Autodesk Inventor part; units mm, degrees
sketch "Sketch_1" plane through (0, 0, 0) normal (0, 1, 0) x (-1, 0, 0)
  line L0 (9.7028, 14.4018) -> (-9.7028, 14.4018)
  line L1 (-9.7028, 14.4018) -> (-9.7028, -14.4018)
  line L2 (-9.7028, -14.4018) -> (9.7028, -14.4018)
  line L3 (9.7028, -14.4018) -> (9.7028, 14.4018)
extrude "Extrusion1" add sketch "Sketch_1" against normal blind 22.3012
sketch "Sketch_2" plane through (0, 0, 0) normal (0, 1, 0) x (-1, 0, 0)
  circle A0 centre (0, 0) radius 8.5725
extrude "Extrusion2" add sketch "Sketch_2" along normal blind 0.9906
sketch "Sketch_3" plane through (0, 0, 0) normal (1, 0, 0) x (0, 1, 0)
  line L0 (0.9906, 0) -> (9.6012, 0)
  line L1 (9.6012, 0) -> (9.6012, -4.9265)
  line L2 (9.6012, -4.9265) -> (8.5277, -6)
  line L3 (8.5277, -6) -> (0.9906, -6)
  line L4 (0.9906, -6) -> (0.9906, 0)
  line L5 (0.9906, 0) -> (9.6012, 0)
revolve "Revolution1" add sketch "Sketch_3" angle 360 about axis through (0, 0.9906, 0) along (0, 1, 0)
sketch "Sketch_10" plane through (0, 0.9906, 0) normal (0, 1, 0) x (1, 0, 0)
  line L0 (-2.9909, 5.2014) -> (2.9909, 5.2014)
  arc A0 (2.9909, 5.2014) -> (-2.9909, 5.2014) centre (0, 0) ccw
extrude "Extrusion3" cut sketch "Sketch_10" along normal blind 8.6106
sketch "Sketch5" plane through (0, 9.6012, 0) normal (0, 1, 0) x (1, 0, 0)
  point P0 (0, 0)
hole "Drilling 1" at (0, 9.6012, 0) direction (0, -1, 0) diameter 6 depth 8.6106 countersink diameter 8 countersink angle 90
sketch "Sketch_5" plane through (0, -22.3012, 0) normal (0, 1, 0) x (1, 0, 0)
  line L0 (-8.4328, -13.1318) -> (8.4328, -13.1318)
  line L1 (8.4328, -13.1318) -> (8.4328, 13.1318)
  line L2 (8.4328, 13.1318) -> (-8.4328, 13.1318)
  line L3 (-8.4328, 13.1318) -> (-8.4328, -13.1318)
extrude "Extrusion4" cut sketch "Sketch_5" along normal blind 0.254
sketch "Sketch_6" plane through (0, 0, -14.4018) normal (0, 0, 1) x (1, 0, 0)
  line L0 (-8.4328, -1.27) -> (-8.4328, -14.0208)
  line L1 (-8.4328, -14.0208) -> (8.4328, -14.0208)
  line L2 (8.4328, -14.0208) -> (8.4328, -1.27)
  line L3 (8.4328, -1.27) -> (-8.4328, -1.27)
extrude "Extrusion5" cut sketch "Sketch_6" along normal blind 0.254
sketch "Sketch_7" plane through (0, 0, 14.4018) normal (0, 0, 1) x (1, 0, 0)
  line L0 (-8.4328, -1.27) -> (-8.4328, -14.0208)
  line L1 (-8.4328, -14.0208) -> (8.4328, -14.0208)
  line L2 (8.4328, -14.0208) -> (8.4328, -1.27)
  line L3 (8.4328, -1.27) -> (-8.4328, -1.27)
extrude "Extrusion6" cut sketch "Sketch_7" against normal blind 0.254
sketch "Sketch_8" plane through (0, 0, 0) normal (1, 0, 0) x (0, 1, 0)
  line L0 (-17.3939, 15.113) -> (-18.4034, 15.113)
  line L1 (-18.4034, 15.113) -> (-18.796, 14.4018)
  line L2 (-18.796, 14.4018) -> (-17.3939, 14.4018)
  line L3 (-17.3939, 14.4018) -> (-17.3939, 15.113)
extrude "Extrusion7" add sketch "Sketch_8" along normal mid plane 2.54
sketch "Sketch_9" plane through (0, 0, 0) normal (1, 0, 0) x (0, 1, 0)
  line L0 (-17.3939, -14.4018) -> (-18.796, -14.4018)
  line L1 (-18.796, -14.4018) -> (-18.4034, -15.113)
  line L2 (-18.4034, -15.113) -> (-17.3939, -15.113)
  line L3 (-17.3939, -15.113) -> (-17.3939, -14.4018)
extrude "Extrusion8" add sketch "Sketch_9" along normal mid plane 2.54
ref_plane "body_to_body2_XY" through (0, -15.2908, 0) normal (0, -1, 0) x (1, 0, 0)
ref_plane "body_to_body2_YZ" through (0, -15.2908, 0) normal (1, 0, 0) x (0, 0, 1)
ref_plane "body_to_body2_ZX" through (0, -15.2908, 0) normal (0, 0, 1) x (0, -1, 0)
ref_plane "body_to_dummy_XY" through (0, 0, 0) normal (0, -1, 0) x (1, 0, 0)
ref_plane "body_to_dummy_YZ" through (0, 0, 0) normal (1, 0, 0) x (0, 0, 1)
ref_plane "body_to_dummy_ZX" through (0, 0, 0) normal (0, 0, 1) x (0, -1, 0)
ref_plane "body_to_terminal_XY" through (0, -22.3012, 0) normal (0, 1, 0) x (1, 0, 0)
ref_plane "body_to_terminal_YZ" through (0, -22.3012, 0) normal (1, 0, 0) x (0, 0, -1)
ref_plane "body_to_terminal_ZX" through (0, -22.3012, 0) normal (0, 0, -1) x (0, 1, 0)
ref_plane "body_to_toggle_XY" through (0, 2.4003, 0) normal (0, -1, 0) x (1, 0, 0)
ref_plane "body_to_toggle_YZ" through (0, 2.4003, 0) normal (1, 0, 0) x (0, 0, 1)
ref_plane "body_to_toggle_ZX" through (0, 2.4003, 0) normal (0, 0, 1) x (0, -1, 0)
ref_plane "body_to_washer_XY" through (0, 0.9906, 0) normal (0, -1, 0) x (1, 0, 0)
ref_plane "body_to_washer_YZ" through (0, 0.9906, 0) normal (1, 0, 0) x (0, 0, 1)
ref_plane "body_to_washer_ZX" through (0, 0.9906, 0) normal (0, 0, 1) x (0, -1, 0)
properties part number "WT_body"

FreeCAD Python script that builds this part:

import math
import FreeCAD as App
import Part
import Sketcher
from FreeCAD import Vector
Q = App.Units.Quantity

doc = App.newDocument("Part")
body = doc.addObject("PartDesign::Body", "Body")

sketch1 = body.newObject("Sketcher::SketchObject", "Sketch")
sketch1.AttachmentSupport = (doc.getObject("XZ_Plane"), [""])
sketch1.MapMode = "FlatFace"
sketch1.addGeometry([
    Part.LineSegment(Vector(-10, -14, 0), Vector(-10, 14, 0)),
    Part.LineSegment(Vector(-10, 14, 0), Vector(10, 14, 0)),
    Part.LineSegment(Vector(10, 14, 0), Vector(10, -14, 0)),
    Part.LineSegment(Vector(10, -14, 0), Vector(-10, -14, 0)),
], False)
sketch1.addConstraint([
    Sketcher.Constraint("Coincident", 0, 2, 1, 1),
    Sketcher.Constraint("Coincident", 1, 2, 2, 1),
    Sketcher.Constraint("Coincident", 2, 2, 3, 1),
    Sketcher.Constraint("Coincident", 3, 2, 0, 1),
    Sketcher.Constraint("Vertical", 0),
    Sketcher.Constraint("Horizontal", 1),
    Sketcher.Constraint("Vertical", 2),
    Sketcher.Constraint("Horizontal", 3),
    Sketcher.Constraint("Symmetric", 0, 2, 2, 2, -1, 1),
    Sketcher.Constraint("DistanceX", 1, 1, 1, 2, Q("0.764 in")),
    Sketcher.Constraint("DistanceY", 0, 1, 0, 2, Q("1.134 in")),
])
pad1 = body.newObject("PartDesign::Pad", "Pad")
pad1.Profile = sketch1
pad1.Length = Q("0.878 in")

sketch2 = body.newObject("Sketcher::SketchObject", "Sketch001")
sketch2.AttachmentSupport = (doc.getObject("XZ_Plane"), [""])
sketch2.MapMode = "FlatFace"
sketch2.addGeometry(Part.Circle(Vector(0, 0, 0), Vector(0, 0, 1), 9), False)
sketch2.addConstraint([
    Sketcher.Constraint("Coincident", 0, 3, -1, 1),
    Sketcher.Constraint("Diameter", 0, Q("0.675 in")),
])
pad2 = body.newObject("PartDesign::Pad", "Pad001")
pad2.Profile = sketch2
pad2.Length = Q("0.039 in")
pad2.Reversed = True

sketch3 = body.newObject("Sketcher::SketchObject", "Sketch002")
sketch3.AttachmentSupport = (doc.getObject("YZ_Plane"), [""])
sketch3.MapMode = "FlatFace"
sketch3.addGeometry([
    Part.LineSegment(Vector(9.6, 0, 0), Vector(1, 0, 0)),
    Part.LineSegment(Vector(1, 0, 0), Vector(1, -6, 0)),
    Part.LineSegment(Vector(1, -6, 0), Vector(8.5, -6, 0)),
    Part.LineSegment(Vector(8.5, -6, 0), Vector(9.6, -4.9, 0)),
    Part.LineSegment(Vector(9.6, -4.9, 0), Vector(9.6, 0, 0)),
], False)
sketch3.addConstraint([
    Sketcher.Constraint("Coincident", 0, 2, 1, 1),
    Sketcher.Constraint("Coincident", 1, 2, 2, 1),
    Sketcher.Constraint("Coincident", 2, 2, 3, 1),
    Sketcher.Constraint("Coincident", 3, 2, 4, 1),
    Sketcher.Constraint("Coincident", 4, 2, 0, 1),
    Sketcher.Constraint("Horizontal", 0),
    Sketcher.Constraint("Vertical", 1),
    Sketcher.Constraint("Horizontal", 2),
    Sketcher.Constraint("Vertical", 4),
    Sketcher.Constraint("PointOnObject", 0, 2, -1),
    Sketcher.Constraint("Angle", 3, Q("45 deg")),
    Sketcher.Constraint("DistanceX", 0, 2, 0, 1, Q("0.339 in")),
    Sketcher.Constraint("DistanceX", -1, 1, 0, 2, Q("0.039 in")),
    Sketcher.Constraint("DistanceX", 2, 1, 2, 2, Q("7.537 mm")),
    Sketcher.Constraint("DistanceY", 1, 2, 1, 1, Q("6 mm")),
])
revolution = body.newObject("PartDesign::Revolution", "Revolution")
revolution.Profile = sketch3
revolution.ReferenceAxis = (sketch3, ["H_Axis"])
revolution.Angle = 360

sketch4 = body.newObject("Sketcher::SketchObject", "Sketch003")
sketch4.AttachmentSupport = (doc.getObject("XZ_Plane"), [""])
sketch4.MapMode = "FlatFace"
sketch4.AttachmentOffset = App.Placement(Vector(0, 0, -0.039 * 25.4), App.Rotation())
sketch4.addGeometry([
    Part.ArcOfCircle(Part.Circle(Vector(0, 0, 0), Vector(0, 0, 1), 6), math.radians(-120), math.radians(-60)),
    Part.LineSegment(Vector(-3, -5, 0), Vector(3, -5, 0)),
], False)
sketch4.addConstraint([
    Sketcher.Constraint("Coincident", 0, 1, 1, 1),
    Sketcher.Constraint("Coincident", 1, 2, 0, 2),
    Sketcher.Constraint("Horizontal", 1),
    Sketcher.Constraint("Coincident", 0, 3, -1, 1),
    Sketcher.Constraint("Radius", 0, Q("6 mm")),
    Sketcher.Constraint("DistanceX", 1, 1, 1, 2, Q("0.2355 in")),
])
pocket1 = body.newObject("PartDesign::Pocket", "Pocket")
pocket1.Profile = sketch4
pocket1.Length = Q("0.339 in")

sketch5 = body.newObject("Sketcher::SketchObject", "Sketch004")
sketch5.AttachmentSupport = (doc.getObject("XZ_Plane"), [""])
sketch5.MapMode = "FlatFace"
sketch5.AttachmentOffset = App.Placement(Vector(0, 0, -0.378 * 25.4), App.Rotation())
sketch5.addGeometry(Part.Circle(Vector(0, 0, 0), Vector(0, 0, 1), 3), False)
sketch5.addConstraint([
    Sketcher.Constraint("Coincident", 0, 3, -1, 1),
    Sketcher.Constraint("Diameter", 0, Q("6 mm")),
])
doc.recompute()
hole = body.newObject("PartDesign::Hole", "Hole")
hole.Profile = sketch5
hole.ThreadType = "None"
hole.Diameter = 6
hole.DepthType = "Dimension"
hole.Depth = Q("0.339 in")
hole.DrillPoint = "Flat"
hole.HoleCutType = "Countersink"
hole.HoleCutDiameter = 8
hole.HoleCutCountersinkAngle = 90
hole.Reversed = True

sketch6 = body.newObject("Sketcher::SketchObject", "Sketch005")
sketch6.AttachmentSupport = (doc.getObject("XZ_Plane"), [""])
sketch6.MapMode = "FlatFace"
sketch6.AttachmentOffset = App.Placement(Vector(0, 0, 0.878 * 25.4), App.Rotation())
sketch6.addGeometry([
    Part.LineSegment(Vector(-8, -13, 0), Vector(-8, 13, 0)),
    Part.LineSegment(Vector(-8, 13, 0), Vector(8, 13, 0)),
    Part.LineSegment(Vector(8, 13, 0), Vector(8, -13, 0)),
    Part.LineSegment(Vector(8, -13, 0), Vector(-8, -13, 0)),
], False)
sketch6.addConstraint([
    Sketcher.Constraint("Coincident", 0, 2, 1, 1),
    Sketcher.Constraint("Coincident", 1, 2, 2, 1),
    Sketcher.Constraint("Coincident", 2, 2, 3, 1),
    Sketcher.Constraint("Coincident", 3, 2, 0, 1),
    Sketcher.Constraint("Vertical", 0),
    Sketcher.Constraint("Horizontal", 1),
    Sketcher.Constraint("Vertical", 2),
    Sketcher.Constraint("Horizontal", 3),
    Sketcher.Constraint("Symmetric", 0, 2, 2, 2, -1, 1),
    Sketcher.Constraint("DistanceX", 1, 1, 1, 2, Q("0.664 in")),
    Sketcher.Constraint("DistanceY", 0, 1, 0, 2, Q("1.034 in")),
])
pocket2 = body.newObject("PartDesign::Pocket", "Pocket001")
pocket2.Profile = sketch6
pocket2.Length = Q("0.01 in")

sketch7 = body.newObject("Sketcher::SketchObject", "Sketch006")
sketch7.AttachmentSupport = (doc.getObject("XY_Plane"), [""])
sketch7.MapMode = "FlatFace"
sketch7.AttachmentOffset = App.Placement(Vector(0, 0, -0.567 * 25.4), App.Rotation())
sketch7.addGeometry([
    Part.LineSegment(Vector(8, -1, 0), Vector(-8, -1, 0)),
    Part.LineSegment(Vector(-8, -1, 0), Vector(-8, -14, 0)),
    Part.LineSegment(Vector(-8, -14, 0), Vector(8, -14, 0)),
    Part.LineSegment(Vector(8, -14, 0), Vector(8, -1, 0)),
], False)
sketch7.addConstraint([
    Sketcher.Constraint("Coincident", 0, 2, 1, 1),
    Sketcher.Constraint("Coincident", 1, 2, 2, 1),
    Sketcher.Constraint("Coincident", 2, 2, 3, 1),
    Sketcher.Constraint("Coincident", 3, 2, 0, 1),
    Sketcher.Constraint("Horizontal", 0),
    Sketcher.Constraint("Vertical", 1),
    Sketcher.Constraint("Horizontal", 2),
    Sketcher.Constraint("Vertical", 3),
    Sketcher.Constraint("DistanceX", 0, 2, 0, 1, Q("0.664 in")),
    Sketcher.Constraint("DistanceY", 1, 2, 1, 1, Q("0.502 in")),
    Sketcher.Constraint("DistanceY", 0, 2, -1, 1, Q("0.05 in")),
    Sketcher.Constraint("DistanceX", 0, 2, -1, 1, Q("0.332 in")),
])
pocket3 = body.newObject("PartDesign::Pocket", "Pocket002")
pocket3.Profile = sketch7
pocket3.Length = Q("0.01 in")
pocket3.Reversed = True

sketch8 = body.newObject("Sketcher::SketchObject", "Sketch007")
sketch8.AttachmentSupport = (doc.getObject("XY_Plane"), [""])
sketch8.MapMode = "FlatFace"
sketch8.AttachmentOffset = App.Placement(Vector(0, 0, 0.567 * 25.4), App.Rotation())
sketch8.addGeometry([
    Part.LineSegment(Vector(8, -1, 0), Vector(-8, -1, 0)),
    Part.LineSegment(Vector(-8, -1, 0), Vector(-8, -14, 0)),
    Part.LineSegment(Vector(-8, -14, 0), Vector(8, -14, 0)),
    Part.LineSegment(Vector(8, -14, 0), Vector(8, -1, 0)),
], False)
sketch8.addConstraint([
    Sketcher.Constraint("Coincident", 0, 2, 1, 1),
    Sketcher.Constraint("Coincident", 1, 2, 2, 1),
    Sketcher.Constraint("Coincident", 2, 2, 3, 1),
    Sketcher.Constraint("Coincident", 3, 2, 0, 1),
    Sketcher.Constraint("Horizontal", 0),
    Sketcher.Constraint("Vertical", 1),
    Sketcher.Constraint("Horizontal", 2),
    Sketcher.Constraint("Vertical", 3),
    Sketcher.Constraint("DistanceX", 0, 2, 0, 1, Q("0.664 in")),
    Sketcher.Constraint("DistanceY", 1, 2, 1, 1, Q("0.502 in")),
    Sketcher.Constraint("DistanceY", 0, 2, -1, 1, Q("0.05 in")),
    Sketcher.Constraint("DistanceX", 0, 2, -1, 1, Q("0.332 in")),
])
pocket4 = body.newObject("PartDesign::Pocket", "Pocket003")
pocket4.Profile = sketch8
pocket4.Length = Q("0.01 in")

sketch9 = body.newObject("Sketcher::SketchObject", "Sketch008")
sketch9.AttachmentSupport = (doc.getObject("YZ_Plane"), [""])
sketch9.MapMode = "FlatFace"
sketch9.addGeometry([
    Part.LineSegment(Vector(-17.4, 14.4, 0), Vector(-17.4, 15.1, 0)),
    Part.LineSegment(Vector(-17.4, 15.1, 0), Vector(-18.4, 15.1, 0)),
    Part.LineSegment(Vector(-18.4, 15.1, 0), Vector(-18.8, 14.4, 0)),
    Part.LineSegment(Vector(-18.8, 14.4, 0), Vector(-17.4, 14.4, 0)),
], False)
sketch9.addConstraint([
    Sketcher.Constraint("Coincident", 0, 2, 1, 1),
    Sketcher.Constraint("Coincident", 1, 2, 2, 1),
    Sketcher.Constraint("Coincident", 2, 2, 3, 1),
    Sketcher.Constraint("Coincident", 3, 2, 0, 1),
    Sketcher.Constraint("Vertical", 0),
    Sketcher.Constraint("Horizontal", 1),
    Sketcher.Constraint("Horizontal", 3),
    Sketcher.Constraint("Angle", 2, Q("-118.8998 deg")),
    Sketcher.Constraint("DistanceY", 0, 1, 0, 2, Q("0.028 in")),
    Sketcher.Constraint("DistanceX", 2, 2, -1, 1, Q("0.74 in")),
    Sketcher.Constraint("DistanceX", 3, 1, 3, 2, Q("0.0552 in")),
    Sketcher.Constraint("DistanceY", -1, 1, 0, 2, Q("0.595 in")),
])
pad3 = body.newObject("PartDesign::Pad", "Pad002")
pad3.Profile = sketch9
pad3.Length = Q("0.1 in")
pad3.Midplane = True

sketch10 = body.newObject("Sketcher::SketchObject", "Sketch009")
sketch10.AttachmentSupport = (doc.getObject("YZ_Plane"), [""])
sketch10.MapMode = "FlatFace"
sketch10.addGeometry([
    Part.LineSegment(Vector(-17.4, -15.1, 0), Vector(-17.4, -14.4, 0)),
    Part.LineSegment(Vector(-17.4, -14.4, 0), Vector(-18.8, -14.4, 0)),
    Part.LineSegment(Vector(-18.8, -14.4, 0), Vector(-18.4, -15.1, 0)),
    Part.LineSegment(Vector(-18.4, -15.1, 0), Vector(-17.4, -15.1, 0)),
], False)
sketch10.addConstraint([
    Sketcher.Constraint("Coincident", 0, 2, 1, 1),
    Sketcher.Constraint("Coincident", 1, 2, 2, 1),
    Sketcher.Constraint("Coincident", 2, 2, 3, 1),
    Sketcher.Constraint("Coincident", 3, 2, 0, 1),
    Sketcher.Constraint("Vertical", 0),
    Sketcher.Constraint("Horizontal", 1),
    Sketcher.Constraint("Horizontal", 3),
    Sketcher.Constraint("Angle", 2, Q("-61.1002 deg")),
    Sketcher.Constraint("DistanceY", 0, 1, 0, 2, Q("0.028 in")),
    Sketcher.Constraint("DistanceX", 1, 2, -1, 1, Q("0.74 in")),
    Sketcher.Constraint("DistanceX", 1, 2, 1, 1, Q("0.0552 in")),
    Sketcher.Constraint("DistanceY", 0, 2, -1, 1, Q("0.567 in")),
])
pad4 = body.newObject("PartDesign::Pad", "Pad003")
pad4.Profile = sketch10
pad4.Length = Q("0.1 in")
pad4.Midplane = True

doc.recompute()
